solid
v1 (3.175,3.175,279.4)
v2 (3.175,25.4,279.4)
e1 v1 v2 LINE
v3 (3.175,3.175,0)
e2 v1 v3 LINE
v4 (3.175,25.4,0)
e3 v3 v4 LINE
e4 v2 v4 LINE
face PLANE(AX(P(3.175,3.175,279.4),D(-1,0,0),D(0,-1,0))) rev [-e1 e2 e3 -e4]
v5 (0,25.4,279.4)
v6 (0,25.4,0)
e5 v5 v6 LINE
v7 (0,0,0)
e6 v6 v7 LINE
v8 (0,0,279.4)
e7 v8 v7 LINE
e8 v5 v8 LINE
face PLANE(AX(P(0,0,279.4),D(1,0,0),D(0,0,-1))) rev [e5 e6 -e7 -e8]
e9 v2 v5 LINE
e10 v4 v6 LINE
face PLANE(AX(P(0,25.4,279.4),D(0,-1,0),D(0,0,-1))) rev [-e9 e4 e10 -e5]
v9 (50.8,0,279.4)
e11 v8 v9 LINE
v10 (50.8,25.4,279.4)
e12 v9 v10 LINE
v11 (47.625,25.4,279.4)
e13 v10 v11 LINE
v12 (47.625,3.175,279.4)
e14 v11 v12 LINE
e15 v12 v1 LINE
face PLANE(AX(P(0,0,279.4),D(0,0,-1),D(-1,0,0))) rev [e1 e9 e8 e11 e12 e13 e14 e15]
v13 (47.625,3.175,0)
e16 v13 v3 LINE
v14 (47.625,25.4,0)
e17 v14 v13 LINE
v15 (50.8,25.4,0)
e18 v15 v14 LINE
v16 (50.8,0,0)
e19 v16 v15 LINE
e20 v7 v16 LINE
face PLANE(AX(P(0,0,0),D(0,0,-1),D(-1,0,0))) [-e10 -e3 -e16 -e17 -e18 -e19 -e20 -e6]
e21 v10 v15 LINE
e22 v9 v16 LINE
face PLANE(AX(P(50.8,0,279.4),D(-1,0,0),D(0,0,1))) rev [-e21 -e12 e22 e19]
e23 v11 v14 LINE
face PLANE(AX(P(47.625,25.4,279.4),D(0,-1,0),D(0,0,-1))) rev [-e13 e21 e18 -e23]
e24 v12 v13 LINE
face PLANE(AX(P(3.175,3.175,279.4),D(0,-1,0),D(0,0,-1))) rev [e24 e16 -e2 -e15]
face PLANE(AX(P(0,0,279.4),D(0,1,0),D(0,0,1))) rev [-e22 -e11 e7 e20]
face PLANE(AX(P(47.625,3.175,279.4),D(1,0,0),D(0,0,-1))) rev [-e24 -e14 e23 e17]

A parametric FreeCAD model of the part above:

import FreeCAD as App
import Part
import Sketcher

V = App.Vector
Q = App.Units.Quantity


def add_polygon(sketch, points):
    """Adds a closed chain of lines whose ends are joined by coincident constraints."""
    first, n = sketch.GeometryCount, len(points)
    for a, b in zip(points, points[1:] + points[:1]):
        sketch.addGeometry(Part.LineSegment(App.Vector(*a, 0), App.Vector(*b, 0)), False)
    for i in range(n):
        sketch.addConstraint(Sketcher.Constraint("Coincident", first + i, 2, first + (i + 1) % n, 1))

doc = App.newDocument("Part")
body = doc.addObject("PartDesign::Body", "Body")

sketch1 = doc.addObject("Sketcher::SketchObject", "Sketch")
body.addObject(sketch1)
sketch1.AttachmentSupport = (doc.XY_Plane, [""])
sketch1.MapMode = "FlatFace"
add_polygon(sketch1, [(3.2, 3.2), (3.2, 25.4), (0, 25.4), (0, 0), (50.8, 0), (50.8, 25.4), (47.6, 25.4), (47.6, 3.2)])
sketch1.addConstraint(Sketcher.Constraint("Vertical", 0))
sketch1.addConstraint(Sketcher.Constraint("Horizontal", 1))
sketch1.addConstraint(Sketcher.Constraint("Vertical", 2))
sketch1.addConstraint(Sketcher.Constraint("Horizontal", 3))
sketch1.addConstraint(Sketcher.Constraint("Vertical", 4))
sketch1.addConstraint(Sketcher.Constraint("Horizontal", 5))
sketch1.addConstraint(Sketcher.Constraint("Vertical", 6))
sketch1.addConstraint(Sketcher.Constraint("Horizontal", 7))
sketch1.addConstraint(Sketcher.Constraint("Coincident", 2, 2, -1, 1))
sketch1.addConstraint(Sketcher.Constraint("Horizontal", 1, 2, 4, 2))
sketch1.addConstraint(Sketcher.Constraint("Equal", 1, 5))
sketch1.addConstraint(Sketcher.Constraint("DistanceX", 3, 1, 3, 2, Q("2 in")))
sketch1.addConstraint(Sketcher.Constraint("DistanceY", 2, 2, 2, 1, Q("1 in")))
sketch1.addConstraint(Sketcher.Constraint("DistanceX", 7, 2, 7, 1, Q("1.75 in")))
sketch1.addConstraint(Sketcher.Constraint("DistanceY", 0, 1, 0, 2, Q("0.875 in")))
pad1 = doc.addObject("PartDesign::Pad", "Pad")
body.addObject(pad1)
pad1.Profile = sketch1
pad1.Length = Q("11 in")

doc.recompute()
